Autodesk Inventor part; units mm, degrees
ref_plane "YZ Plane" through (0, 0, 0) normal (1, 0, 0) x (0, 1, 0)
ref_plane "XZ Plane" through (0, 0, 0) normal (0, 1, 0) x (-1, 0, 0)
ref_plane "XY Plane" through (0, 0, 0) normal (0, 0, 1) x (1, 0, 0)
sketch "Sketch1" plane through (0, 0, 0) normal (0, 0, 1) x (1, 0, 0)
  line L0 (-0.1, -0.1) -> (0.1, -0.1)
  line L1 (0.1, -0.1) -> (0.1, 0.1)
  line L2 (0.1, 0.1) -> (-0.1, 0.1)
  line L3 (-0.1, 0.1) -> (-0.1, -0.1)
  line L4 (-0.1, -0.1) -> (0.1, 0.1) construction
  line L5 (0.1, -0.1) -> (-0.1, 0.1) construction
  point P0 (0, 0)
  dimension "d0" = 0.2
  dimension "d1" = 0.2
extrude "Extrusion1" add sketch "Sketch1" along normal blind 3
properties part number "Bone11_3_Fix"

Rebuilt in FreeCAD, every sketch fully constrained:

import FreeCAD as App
import Part
import Sketcher
Q = App.Units.Quantity

doc = App.newDocument("Part")
body = doc.addObject("PartDesign::Body", "Body")

sketch1 = body.newObject("Sketcher::SketchObject", "Sketch")
sketch1.AttachmentSupport = (doc.getObject("XY_Plane"), [""])
sketch1.MapMode = "FlatFace"
sketch1.addGeometry(Part.LineSegment(App.Vector(-0.1, 0.1, 0), App.Vector(-0.1, -0.1, 0)), False)
sketch1.addGeometry(Part.LineSegment(App.Vector(-0.1, -0.1, 0), App.Vector(0.1, -0.1, 0)), False)
sketch1.addGeometry(Part.LineSegment(App.Vector(0.1, -0.1, 0), App.Vector(0.1, 0.1, 0)), False)
sketch1.addGeometry(Part.LineSegment(App.Vector(0.1, 0.1, 0), App.Vector(-0.1, 0.1, 0)), False)
sketch1.addConstraint(Sketcher.Constraint("Coincident", 0, 2, 1, 1))
sketch1.addConstraint(Sketcher.Constraint("Coincident", 1, 2, 2, 1))
sketch1.addConstraint(Sketcher.Constraint("Coincident", 2, 2, 3, 1))
sketch1.addConstraint(Sketcher.Constraint("Coincident", 3, 2, 0, 1))
sketch1.addConstraint(Sketcher.Constraint("Vertical", 0))
sketch1.addConstraint(Sketcher.Constraint("Horizontal", 1))
sketch1.addConstraint(Sketcher.Constraint("Vertical", 2))
sketch1.addConstraint(Sketcher.Constraint("Horizontal", 3))
sketch1.addConstraint(Sketcher.Constraint("Symmetric", 0, 2, 2, 2, -1, 1))
sketch1.addConstraint(Sketcher.Constraint("Equal", 3, 0))
sketch1.addConstraint(Sketcher.Constraint("DistanceX", 1, 1, 1, 2, Q("0.2 mm")))
pad1 = body.newObject("PartDesign::Pad", "Pad")
pad1.Profile = sketch1
pad1.Length = 3

doc.recompute()
